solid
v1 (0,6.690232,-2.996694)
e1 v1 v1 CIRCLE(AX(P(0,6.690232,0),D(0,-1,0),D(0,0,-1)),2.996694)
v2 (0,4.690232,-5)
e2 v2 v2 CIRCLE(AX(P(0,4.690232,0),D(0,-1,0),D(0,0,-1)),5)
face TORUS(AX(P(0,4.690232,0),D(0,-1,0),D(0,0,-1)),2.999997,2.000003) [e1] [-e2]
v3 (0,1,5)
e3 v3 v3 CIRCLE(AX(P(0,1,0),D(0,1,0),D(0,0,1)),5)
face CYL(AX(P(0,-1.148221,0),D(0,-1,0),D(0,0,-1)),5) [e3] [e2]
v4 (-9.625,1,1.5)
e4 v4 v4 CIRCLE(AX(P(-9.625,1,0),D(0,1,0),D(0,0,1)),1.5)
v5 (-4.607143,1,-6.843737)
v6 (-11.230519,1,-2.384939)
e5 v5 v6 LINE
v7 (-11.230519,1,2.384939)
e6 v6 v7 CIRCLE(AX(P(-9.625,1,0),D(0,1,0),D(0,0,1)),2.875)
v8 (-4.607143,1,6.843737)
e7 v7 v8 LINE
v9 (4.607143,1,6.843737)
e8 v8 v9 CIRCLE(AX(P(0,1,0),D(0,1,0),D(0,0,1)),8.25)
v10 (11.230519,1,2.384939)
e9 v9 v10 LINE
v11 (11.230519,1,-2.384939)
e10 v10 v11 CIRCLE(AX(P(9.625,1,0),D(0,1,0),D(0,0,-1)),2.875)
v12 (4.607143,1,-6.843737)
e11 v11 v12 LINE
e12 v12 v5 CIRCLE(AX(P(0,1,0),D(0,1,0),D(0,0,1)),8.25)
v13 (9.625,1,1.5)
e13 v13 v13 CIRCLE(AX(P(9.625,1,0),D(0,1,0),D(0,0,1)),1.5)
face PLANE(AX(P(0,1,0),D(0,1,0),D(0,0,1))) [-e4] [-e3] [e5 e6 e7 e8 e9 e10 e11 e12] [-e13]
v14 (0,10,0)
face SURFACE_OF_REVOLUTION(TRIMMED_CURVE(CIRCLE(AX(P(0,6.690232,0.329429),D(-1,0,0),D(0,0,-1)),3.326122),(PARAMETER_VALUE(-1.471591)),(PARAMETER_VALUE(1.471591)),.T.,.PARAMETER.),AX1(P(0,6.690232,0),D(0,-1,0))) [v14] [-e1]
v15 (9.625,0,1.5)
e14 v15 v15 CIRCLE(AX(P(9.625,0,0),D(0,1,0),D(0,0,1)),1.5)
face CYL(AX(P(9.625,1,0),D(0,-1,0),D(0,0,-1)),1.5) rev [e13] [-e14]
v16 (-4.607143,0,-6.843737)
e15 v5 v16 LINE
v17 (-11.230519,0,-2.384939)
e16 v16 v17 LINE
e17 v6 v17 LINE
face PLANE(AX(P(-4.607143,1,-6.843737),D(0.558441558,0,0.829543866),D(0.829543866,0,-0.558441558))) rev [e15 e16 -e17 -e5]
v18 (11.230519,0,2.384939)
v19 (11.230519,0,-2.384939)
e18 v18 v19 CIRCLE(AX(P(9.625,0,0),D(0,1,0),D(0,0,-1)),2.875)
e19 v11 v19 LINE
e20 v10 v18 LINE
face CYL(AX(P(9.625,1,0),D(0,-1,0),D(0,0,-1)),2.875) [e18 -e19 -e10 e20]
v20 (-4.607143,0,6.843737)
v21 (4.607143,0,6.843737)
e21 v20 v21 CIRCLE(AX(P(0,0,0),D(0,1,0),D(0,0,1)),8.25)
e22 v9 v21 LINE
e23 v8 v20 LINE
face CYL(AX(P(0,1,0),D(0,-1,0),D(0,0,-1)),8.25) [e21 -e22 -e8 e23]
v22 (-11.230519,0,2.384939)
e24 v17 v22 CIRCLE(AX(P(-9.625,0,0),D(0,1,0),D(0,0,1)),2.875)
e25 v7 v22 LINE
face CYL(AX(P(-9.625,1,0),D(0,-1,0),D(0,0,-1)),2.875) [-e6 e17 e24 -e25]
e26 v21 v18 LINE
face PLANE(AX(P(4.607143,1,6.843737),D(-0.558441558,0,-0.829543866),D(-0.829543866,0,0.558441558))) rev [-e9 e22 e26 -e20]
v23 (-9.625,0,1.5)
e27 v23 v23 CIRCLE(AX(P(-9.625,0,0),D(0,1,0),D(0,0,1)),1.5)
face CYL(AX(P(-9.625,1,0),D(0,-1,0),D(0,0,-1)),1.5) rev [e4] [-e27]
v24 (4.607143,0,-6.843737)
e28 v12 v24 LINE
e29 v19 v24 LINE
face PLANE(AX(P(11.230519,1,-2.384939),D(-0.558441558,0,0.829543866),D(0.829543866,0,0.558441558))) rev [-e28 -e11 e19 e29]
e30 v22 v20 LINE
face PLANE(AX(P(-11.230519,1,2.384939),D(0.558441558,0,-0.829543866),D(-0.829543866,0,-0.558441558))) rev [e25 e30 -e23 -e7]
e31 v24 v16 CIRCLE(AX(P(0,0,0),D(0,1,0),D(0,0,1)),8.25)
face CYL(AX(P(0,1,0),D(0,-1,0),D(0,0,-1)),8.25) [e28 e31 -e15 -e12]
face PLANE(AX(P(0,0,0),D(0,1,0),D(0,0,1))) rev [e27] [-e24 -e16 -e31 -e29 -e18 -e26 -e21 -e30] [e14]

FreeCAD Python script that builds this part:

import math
import FreeCAD as App
import Part
import Sketcher
Q = App.Units.Quantity

doc = App.newDocument("Part")
params = doc.addObject("Spreadsheet::Sheet", "Params")
for row, (alias, value) in enumerate([
    ("sketch1_diameter", "3 mm"),
    ("sketch1_radius", "8.25 mm"),
    ("pad1_length", "1 mm"),
    ("sketch2_width", "5 mm"),
    ("sketch2_height", "9 mm"),
    ("revolution_angle", "360 deg"),
], start=1):
    params.set(f"A{row}", alias)
    params.set(f"B{row}", "=" + value)
    params.setAlias(f"B{row}", alias)

body = doc.addObject("PartDesign::Body", "Body")

# Sketch on XZ plane
sketch1 = doc.addObject("Sketcher::SketchObject", "Sketch")
body.addObject(sketch1)
sketch1.AttachmentSupport = (doc.XZ_Plane, [""])
sketch1.MapMode = "FlatFace"
sketch1.addGeometry([
    Part.LineSegment(App.Vector(-4.607143, -6.843737, 0), App.Vector(-11.230519, -2.384939, 0)),  # 0
    Part.ArcOfCircle(Part.Circle(App.Vector(-9.625, 0, 0), App.Vector(0, 0, 1), 2.875), math.radians(123.94809), math.radians(236.05191)),  # 1
    Part.LineSegment(App.Vector(-11.230519, 2.384939, 0), App.Vector(-4.607143, 6.843737, 0)),  # 2
    Part.ArcOfCircle(Part.Circle(App.Vector(0, 0, 0), App.Vector(0, 0, 1), 8.25), math.radians(56.05191), math.radians(123.94809)),  # 3
    Part.LineSegment(App.Vector(4.607143, 6.843737, 0), App.Vector(11.230519, 2.384939, 0)),  # 4
    Part.ArcOfCircle(Part.Circle(App.Vector(9.625, 0, 0), App.Vector(0, 0, 1), 2.875), math.radians(-56.05191), math.radians(56.05191)),  # 5
    Part.LineSegment(App.Vector(11.230519, -2.384939, 0), App.Vector(4.607143, -6.843737, 0)),  # 6
    Part.ArcOfCircle(Part.Circle(App.Vector(0, 0, 0), App.Vector(0, 0, 1), 8.25), math.radians(-123.94809), math.radians(-56.05191)),  # 7
    Part.Circle(App.Vector(-9.625, 0, 0), App.Vector(0, 0, 1), 1.5),  # 8
    Part.Circle(App.Vector(9.625, 0, 0), App.Vector(0, 0, 1), 1.5),  # 9
], False)
sketch1.addConstraint([
    Sketcher.Constraint("Tangent", 0, 2, 1, 2),
    Sketcher.Constraint("Tangent", 1, 1, 2, 1),
    Sketcher.Constraint("Tangent", 2, 2, 3, 2),
    Sketcher.Constraint("Tangent", 3, 1, 4, 1),
    Sketcher.Constraint("Tangent", 4, 2, 5, 2),
    Sketcher.Constraint("Tangent", 5, 1, 6, 1),
    Sketcher.Constraint("Tangent", 6, 2, 7, 2),
    Sketcher.Constraint("Tangent", 7, 1, 0, 1),
    Sketcher.Constraint("Coincident", 3, 3, -1, 1),
    Sketcher.Constraint("Coincident", 7, 3, -1, 1),
    Sketcher.Constraint("Coincident", 8, 3, 1, 3),
    Sketcher.Constraint("Coincident", 9, 3, 5, 3),
    Sketcher.Constraint("Equal", 1, 5),
    Sketcher.Constraint("Equal", 3, 7),
    Sketcher.Constraint("Equal", 8, 9),
    Sketcher.Constraint("Symmetric", 1, 3, 5, 3, -1, 1),
    Sketcher.Constraint("PointOnObject", 1, 3, -1),
    Sketcher.Constraint("Diameter", 8, Q("3 mm")),
    Sketcher.Constraint("Radius", 3, Q("8.25 mm")),
    Sketcher.Constraint("Radius", 1, Q("2.875 mm")),
    Sketcher.Constraint("DistanceX", 1, 3, 5, 3, Q("19.25 mm")),
])
sketch1.setExpression("Constraints[17]", "Params.sketch1_diameter")
sketch1.setExpression("Constraints[18]", "Params.sketch1_radius")
pad1 = doc.addObject("PartDesign::Pad", "Pad")
body.addObject(pad1)
pad1.Profile = sketch1
pad1.setExpression("Length", "Params.pad1_length")
pad1.Reversed = True

# Sketch on XY plane
sketch2 = doc.addObject("Sketcher::SketchObject", "Sketch001")
body.addObject(sketch2)
sketch2.AttachmentSupport = (doc.XY_Plane, [""])
sketch2.MapMode = "FlatFace"
sketch2.addGeometry([
    Part.ArcOfCircle(Part.Circle(App.Vector(0.329429, 6.690232, 0), App.Vector(0, 0, 1), 3.326122), math.radians(95.684058), math.radians(180)),  # 0
    Part.ArcOfCircle(Part.Circle(App.Vector(-2.999997, 4.690232, 0), App.Vector(0, 0, 1), 2.000003), math.radians(89.905358), math.radians(180)),  # 1
    Part.LineSegment(App.Vector(-5, 4.690232, 0), App.Vector(-5, 1, 0)),  # 2
    Part.LineSegment(App.Vector(-5, 1, 0), App.Vector(0, 1, 0)),  # 3
    Part.LineSegment(App.Vector(0, 1, 0), App.Vector(0, 10, 0)),  # 4
], False)
sketch2.addConstraint([
    Sketcher.Constraint("Coincident", 0, 2, 1, 1),
    Sketcher.Constraint("Tangent", 1, 2, 2, 1),
    Sketcher.Constraint("Coincident", 2, 2, 3, 1),
    Sketcher.Constraint("Coincident", 3, 2, 4, 1),
    Sketcher.Constraint("Coincident", 4, 2, 0, 1),
    Sketcher.Constraint("Vertical", 2),
    Sketcher.Constraint("Horizontal", 3),
    Sketcher.Constraint("Vertical", 4),
    Sketcher.Constraint("PointOnObject", 3, 2, -2),
    Sketcher.Constraint("DistanceX", 3, 1, 3, 2, Q("5 mm")),
    Sketcher.Constraint("DistanceY", 4, 1, 4, 2, Q("9 mm")),
    Sketcher.Constraint("DistanceY", -1, 1, 2, 2, Q("1 mm")),
    Sketcher.Constraint("DistanceY", 1, 3, 0, 3, Q("2 mm")),
    Sketcher.Constraint("DistanceY", 1, 3, 0, 2, Q("2 mm")),
    Sketcher.Constraint("Radius", 0, Q("3.326122 mm")),
    Sketcher.Constraint("DistanceY", 2, 2, 2, 1, Q("3.690232 mm")),
])
sketch2.setExpression("Constraints[9]", "Params.sketch2_width")
sketch2.setExpression("Constraints[10]", "Params.sketch2_height")
revolution = doc.addObject("PartDesign::Revolution", "Revolution")
body.addObject(revolution)
revolution.Profile = sketch2
revolution.ReferenceAxis = (sketch2, ["V_Axis"])
revolution.setExpression("Angle", "Params.revolution_angle")

doc.recompute()
